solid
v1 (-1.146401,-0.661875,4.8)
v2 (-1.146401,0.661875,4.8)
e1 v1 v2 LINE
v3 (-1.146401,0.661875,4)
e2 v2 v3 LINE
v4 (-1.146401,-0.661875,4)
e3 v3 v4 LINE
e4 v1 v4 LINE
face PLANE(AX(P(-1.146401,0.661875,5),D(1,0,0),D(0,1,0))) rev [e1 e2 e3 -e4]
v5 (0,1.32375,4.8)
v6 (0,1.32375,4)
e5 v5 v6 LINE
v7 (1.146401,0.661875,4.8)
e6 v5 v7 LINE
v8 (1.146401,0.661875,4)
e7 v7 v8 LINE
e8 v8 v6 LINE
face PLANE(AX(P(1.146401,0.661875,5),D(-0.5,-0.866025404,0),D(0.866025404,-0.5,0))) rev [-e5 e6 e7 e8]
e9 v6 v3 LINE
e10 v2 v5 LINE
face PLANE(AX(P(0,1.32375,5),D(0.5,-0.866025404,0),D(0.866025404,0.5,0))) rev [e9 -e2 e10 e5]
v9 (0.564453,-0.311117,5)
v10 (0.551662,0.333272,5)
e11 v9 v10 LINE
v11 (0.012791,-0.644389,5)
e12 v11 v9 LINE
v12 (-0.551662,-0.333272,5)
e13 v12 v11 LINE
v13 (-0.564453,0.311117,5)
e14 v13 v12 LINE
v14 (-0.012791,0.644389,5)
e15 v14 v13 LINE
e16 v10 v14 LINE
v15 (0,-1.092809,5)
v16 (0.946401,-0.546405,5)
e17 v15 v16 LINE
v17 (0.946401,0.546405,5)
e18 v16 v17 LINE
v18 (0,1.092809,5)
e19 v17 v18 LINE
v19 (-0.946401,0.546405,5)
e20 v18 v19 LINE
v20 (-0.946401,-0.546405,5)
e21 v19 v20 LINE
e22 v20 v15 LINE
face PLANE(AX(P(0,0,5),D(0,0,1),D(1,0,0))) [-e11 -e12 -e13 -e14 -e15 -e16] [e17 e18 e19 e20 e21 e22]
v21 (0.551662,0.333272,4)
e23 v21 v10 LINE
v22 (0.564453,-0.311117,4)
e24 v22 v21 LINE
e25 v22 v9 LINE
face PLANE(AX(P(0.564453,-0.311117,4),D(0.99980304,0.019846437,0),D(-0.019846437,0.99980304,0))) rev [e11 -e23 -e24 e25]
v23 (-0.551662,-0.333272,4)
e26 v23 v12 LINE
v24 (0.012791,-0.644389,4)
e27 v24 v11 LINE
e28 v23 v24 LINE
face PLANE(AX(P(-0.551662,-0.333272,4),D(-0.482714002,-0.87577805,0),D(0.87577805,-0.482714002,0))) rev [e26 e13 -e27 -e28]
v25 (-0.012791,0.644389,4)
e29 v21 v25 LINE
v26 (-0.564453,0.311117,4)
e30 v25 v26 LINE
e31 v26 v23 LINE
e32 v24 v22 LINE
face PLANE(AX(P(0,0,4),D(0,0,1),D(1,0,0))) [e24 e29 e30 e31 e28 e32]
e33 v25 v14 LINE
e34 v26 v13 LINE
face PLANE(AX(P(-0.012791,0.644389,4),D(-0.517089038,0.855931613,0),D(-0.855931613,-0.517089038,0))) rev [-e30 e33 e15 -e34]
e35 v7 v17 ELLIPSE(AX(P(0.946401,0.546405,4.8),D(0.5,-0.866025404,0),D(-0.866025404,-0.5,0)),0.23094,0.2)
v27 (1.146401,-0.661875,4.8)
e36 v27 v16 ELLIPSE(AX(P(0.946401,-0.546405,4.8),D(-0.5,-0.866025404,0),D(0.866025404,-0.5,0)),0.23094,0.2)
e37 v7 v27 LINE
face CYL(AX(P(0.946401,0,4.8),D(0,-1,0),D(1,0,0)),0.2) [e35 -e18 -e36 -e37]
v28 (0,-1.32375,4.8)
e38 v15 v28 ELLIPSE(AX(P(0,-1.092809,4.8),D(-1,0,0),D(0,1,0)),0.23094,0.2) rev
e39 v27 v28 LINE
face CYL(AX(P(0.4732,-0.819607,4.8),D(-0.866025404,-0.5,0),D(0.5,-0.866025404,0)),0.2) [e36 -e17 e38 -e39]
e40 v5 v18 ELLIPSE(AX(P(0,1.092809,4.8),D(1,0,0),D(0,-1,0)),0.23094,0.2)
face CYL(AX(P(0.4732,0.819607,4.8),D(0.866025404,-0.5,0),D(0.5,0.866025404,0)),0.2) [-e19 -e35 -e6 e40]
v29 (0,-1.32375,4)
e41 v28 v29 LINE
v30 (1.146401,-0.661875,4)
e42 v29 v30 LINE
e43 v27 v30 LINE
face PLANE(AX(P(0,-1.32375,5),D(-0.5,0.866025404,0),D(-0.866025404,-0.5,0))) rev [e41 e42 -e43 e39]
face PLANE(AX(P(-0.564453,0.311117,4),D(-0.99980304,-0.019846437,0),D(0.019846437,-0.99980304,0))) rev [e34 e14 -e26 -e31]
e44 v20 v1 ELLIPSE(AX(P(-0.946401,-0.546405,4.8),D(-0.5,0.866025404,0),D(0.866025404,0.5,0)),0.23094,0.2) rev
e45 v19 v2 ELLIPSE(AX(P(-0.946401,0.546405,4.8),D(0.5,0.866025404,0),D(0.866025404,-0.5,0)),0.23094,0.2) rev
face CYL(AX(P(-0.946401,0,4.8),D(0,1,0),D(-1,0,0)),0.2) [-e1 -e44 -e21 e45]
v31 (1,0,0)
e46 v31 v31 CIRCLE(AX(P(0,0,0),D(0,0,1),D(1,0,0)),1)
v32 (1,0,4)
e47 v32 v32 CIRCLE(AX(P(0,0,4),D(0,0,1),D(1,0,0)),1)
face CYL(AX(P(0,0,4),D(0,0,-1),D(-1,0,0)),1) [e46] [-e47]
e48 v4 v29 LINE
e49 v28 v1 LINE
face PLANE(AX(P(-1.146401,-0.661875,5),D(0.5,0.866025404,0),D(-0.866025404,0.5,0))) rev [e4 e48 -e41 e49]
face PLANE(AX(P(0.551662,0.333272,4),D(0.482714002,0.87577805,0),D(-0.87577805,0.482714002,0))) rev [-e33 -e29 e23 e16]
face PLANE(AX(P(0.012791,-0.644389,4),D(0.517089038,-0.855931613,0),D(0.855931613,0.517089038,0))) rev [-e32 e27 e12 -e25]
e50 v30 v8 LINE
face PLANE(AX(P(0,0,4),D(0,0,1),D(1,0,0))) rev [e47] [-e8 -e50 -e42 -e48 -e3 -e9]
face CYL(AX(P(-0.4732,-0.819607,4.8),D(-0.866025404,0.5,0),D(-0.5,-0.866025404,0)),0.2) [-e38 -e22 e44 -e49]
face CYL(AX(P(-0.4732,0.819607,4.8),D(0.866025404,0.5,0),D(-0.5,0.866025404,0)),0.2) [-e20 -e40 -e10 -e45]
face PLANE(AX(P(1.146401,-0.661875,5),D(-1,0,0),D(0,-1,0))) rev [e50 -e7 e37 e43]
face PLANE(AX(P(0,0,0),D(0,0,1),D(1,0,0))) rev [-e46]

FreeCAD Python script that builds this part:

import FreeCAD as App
import Part
import Sketcher
Q = App.Units.Quantity


def edges_at(feature, points):
    """Names of the edges that pass closest to the given points."""
    edges = feature.Shape.Edges
    near = lambda p: min(range(len(edges)), key=lambda i: edges[i].distToShape(Part.Vertex(*p))[0])
    return sorted({f"Edge{near(p) + 1}" for p in points})


def add_polygon(sketch, points):
    """Adds a closed chain of lines whose ends are joined by coincident constraints."""
    first, n = sketch.GeometryCount, len(points)
    for a, b in zip(points, points[1:] + points[:1]):
        sketch.addGeometry(Part.LineSegment(App.Vector(*a, 0), App.Vector(*b, 0)), False)
    for i in range(n):
        sketch.addConstraint(Sketcher.Constraint("Coincident", first + i, 2, first + (i + 1) % n, 1))

doc = App.newDocument("Part")
body = doc.addObject("PartDesign::Body", "Body")

# Sketch on XY plane
sketch1 = body.newObject("Sketcher::SketchObject", "Sketch")
sketch1.AttachmentSupport = (doc.getObject("XY_Plane"), [""])
sketch1.MapMode = "FlatFace"
sketch1.addGeometry(Part.Circle(App.Vector(0, 0, 0), App.Vector(0, 0, 1), 1), False)
sketch1.addConstraint([
    Sketcher.Constraint("Coincident", 0, 3, -1, 1),
    Sketcher.Constraint("Diameter", 0, 2.0),
])
pad1 = body.newObject("PartDesign::Pad", "Pad")
pad1.Profile = sketch1
pad1.Length = 4

# Sketch on XY plane
sketch2 = body.newObject("Sketcher::SketchObject", "Sketch001")
sketch2.AttachmentSupport = (doc.getObject("XY_Plane"), [""])
sketch2.MapMode = "FlatFace"
sketch2.AttachmentOffset = App.Placement(App.Vector(0, 0, 4), App.Rotation())
add_polygon(sketch2, [(0, 1.3), (-1.1, 0.7), (-1.1, -0.7), (0, -1.3), (1.1, -0.7), (1.1, 0.7)])  # lines 0-5
sketch2.addConstraint([
    Sketcher.Constraint("Vertical", 1),
    Sketcher.Constraint("Vertical", 4),
    Sketcher.Constraint("Symmetric", 0, 2, 3, 2, -1, 1),
    Sketcher.Constraint("Symmetric", 2, 2, 5, 2, -1, 1),
    Sketcher.Constraint("PointOnObject", 2, 2, -2),
    Sketcher.Constraint("Parallel", 2, 5),
    Sketcher.Constraint("Horizontal", 1, 2, 3, 2),
    Sketcher.Constraint("Angle", 0, Q("-150 deg")),
    Sketcher.Constraint("DistanceY", 1, 2, 1, 1, 1.32375),
    Sketcher.Constraint("DistanceX", 0, 2, -1, 1, 1.146401),
])
pad2 = body.newObject("PartDesign::Pad", "Pad001")
pad2.Profile = sketch2
pad2.Length = 1

# Sketch on XY plane
sketch3 = body.newObject("Sketcher::SketchObject", "Sketch002")
sketch3.AttachmentSupport = (doc.getObject("XY_Plane"), [""])
sketch3.MapMode = "FlatFace"
sketch3.AttachmentOffset = App.Placement(App.Vector(0, 0, 5), App.Rotation())
add_polygon(sketch3, [(-0.6, 0.3), (-0.6, -0.3), (0, -0.6), (0.6, -0.3), (0.6, 0.3), (0, 0.6)])  # lines 0-5
sketch3.addConstraint([
    Sketcher.Constraint("Symmetric", 0, 2, 3, 2, -1, 1),
    Sketcher.Constraint("Symmetric", 1, 2, 4, 2, -1, 1),
    Sketcher.Constraint("Symmetric", 2, 2, 5, 2, -1, 1),
    Sketcher.Constraint("Equal", 0, 1),
    Sketcher.Constraint("Equal", 1, 2),
    Sketcher.Constraint("DistanceX", 0, 2, -1, 1, 0.551662),
    Sketcher.Constraint("DistanceX", -1, 1, 1, 2, 0.012791),
    Sketcher.Constraint("DistanceY", 1, 2, -1, 1, 0.644389),
    Sketcher.Constraint("DistanceX", 1, 2, 2, 2, 0.551662),
])
pocket1 = body.newObject("PartDesign::Pocket", "Pocket")
pocket1.Profile = sketch3
pocket1.Length = 1
doc.recompute()

fillet = body.newObject("PartDesign::Fillet", "Fillet")
fillet.Base = (pocket1, edges_at(pocket1, [
    (0.573, 0.993, 5),
    (-0.573, 0.993, 5),
    (-1.146, 0, 5),
    (-0.573, -0.993, 5),
    (0.573, -0.993, 5),
    (1.146, 0, 5),
]))
fillet.Radius = 0.2

doc.recompute()
